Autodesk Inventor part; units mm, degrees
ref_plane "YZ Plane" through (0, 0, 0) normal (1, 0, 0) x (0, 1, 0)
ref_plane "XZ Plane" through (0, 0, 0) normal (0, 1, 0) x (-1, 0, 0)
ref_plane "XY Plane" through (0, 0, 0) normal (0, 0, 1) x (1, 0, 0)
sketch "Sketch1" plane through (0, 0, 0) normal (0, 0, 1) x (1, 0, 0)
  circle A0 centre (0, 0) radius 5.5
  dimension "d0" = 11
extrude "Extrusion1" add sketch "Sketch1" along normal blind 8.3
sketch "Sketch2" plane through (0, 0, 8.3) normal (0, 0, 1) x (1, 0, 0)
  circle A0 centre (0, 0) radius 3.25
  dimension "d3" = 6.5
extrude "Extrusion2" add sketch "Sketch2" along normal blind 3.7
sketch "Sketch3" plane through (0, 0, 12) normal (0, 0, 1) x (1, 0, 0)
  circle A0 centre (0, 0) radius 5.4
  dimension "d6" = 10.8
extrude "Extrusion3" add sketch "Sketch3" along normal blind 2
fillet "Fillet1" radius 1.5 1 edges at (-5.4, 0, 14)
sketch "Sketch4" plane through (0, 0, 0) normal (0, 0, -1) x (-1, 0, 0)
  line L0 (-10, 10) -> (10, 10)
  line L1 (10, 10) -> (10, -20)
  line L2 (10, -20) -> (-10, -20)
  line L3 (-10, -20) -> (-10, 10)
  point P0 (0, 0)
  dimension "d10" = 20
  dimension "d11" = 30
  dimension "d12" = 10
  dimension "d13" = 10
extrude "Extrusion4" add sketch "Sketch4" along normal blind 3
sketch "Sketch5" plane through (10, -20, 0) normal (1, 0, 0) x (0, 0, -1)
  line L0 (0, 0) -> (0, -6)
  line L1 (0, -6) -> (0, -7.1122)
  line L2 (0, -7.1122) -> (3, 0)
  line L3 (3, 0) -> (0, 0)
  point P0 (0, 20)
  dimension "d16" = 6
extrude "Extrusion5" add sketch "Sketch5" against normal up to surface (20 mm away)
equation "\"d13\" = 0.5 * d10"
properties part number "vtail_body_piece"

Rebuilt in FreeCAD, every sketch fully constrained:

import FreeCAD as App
import Part
import Sketcher

V = App.Vector
Q = App.Units.Quantity


def edges_at(feature, points):
    """Names of the edges that pass closest to the given points."""
    edges = feature.Shape.Edges
    near = lambda p: min(range(len(edges)), key=lambda i: edges[i].distToShape(Part.Vertex(*p))[0])
    return sorted({f"Edge{near(p) + 1}" for p in points})

doc = App.newDocument("Part")
body = doc.addObject("PartDesign::Body", "Body")

# Sketch on XY plane
sketch1 = body.newObject("Sketcher::SketchObject", "Sketch")
sketch1.AttachmentSupport = (doc.getObject("XY_Plane"), [""])
sketch1.MapMode = "FlatFace"
sketch1.addGeometry(Part.Circle(V(0, 0, 0), V(0, 0, 1), 5.5), False)
sketch1.addConstraint([
    Sketcher.Constraint("Coincident", 0, 3, -1, 1),
    Sketcher.Constraint("Diameter", 0, Q("11 mm")),
])
pad1 = body.newObject("PartDesign::Pad", "Pad")
pad1.Profile = sketch1
pad1.Length = 8.3

# Sketch on XY plane
sketch2 = body.newObject("Sketcher::SketchObject", "Sketch001")
sketch2.AttachmentSupport = (doc.getObject("XY_Plane"), [""])
sketch2.MapMode = "FlatFace"
sketch2.AttachmentOffset = App.Placement(V(0, 0, 8.3), App.Rotation())
sketch2.addGeometry(Part.Circle(V(0, 0, 0), V(0, 0, 1), 3.25), False)
sketch2.addConstraint([
    Sketcher.Constraint("Coincident", 0, 3, -1, 1),
    Sketcher.Constraint("Diameter", 0, Q("6.5 mm")),
])
pad2 = body.newObject("PartDesign::Pad", "Pad001")
pad2.Profile = sketch2
pad2.Length = 3.7

# Sketch on XY plane
sketch3 = body.newObject("Sketcher::SketchObject", "Sketch002")
sketch3.AttachmentSupport = (doc.getObject("XY_Plane"), [""])
sketch3.MapMode = "FlatFace"
sketch3.AttachmentOffset = App.Placement(V(0, 0, 12), App.Rotation())
sketch3.addGeometry(Part.Circle(V(0, 0, 0), V(0, 0, 1), 5.4), False)
sketch3.addConstraint([
    Sketcher.Constraint("Coincident", 0, 3, -1, 1),
    Sketcher.Constraint("Diameter", 0, Q("10.8 mm")),
])
pad3 = body.newObject("PartDesign::Pad", "Pad002")
pad3.Profile = sketch3
pad3.Length = 2
doc.recompute()

fillet = body.newObject("PartDesign::Fillet", "Fillet")
fillet.Base = (pad3, edges_at(pad3, [(-5.4, 0, 14)]))
fillet.Radius = 1.5

# Sketch on XY plane
sketch4 = body.newObject("Sketcher::SketchObject", "Sketch003")
sketch4.AttachmentSupport = (doc.getObject("XY_Plane"), [""])
sketch4.MapMode = "FlatFace"
sketch4.addGeometry([
    Part.LineSegment(V(-10, 10, 0), V(10, 10, 0)),
    Part.LineSegment(V(10, 10, 0), V(10, -20, 0)),
    Part.LineSegment(V(10, -20, 0), V(-10, -20, 0)),
    Part.LineSegment(V(-10, -20, 0), V(-10, 10, 0)),
], False)
sketch4.addConstraint([
    Sketcher.Constraint("Coincident", 0, 2, 1, 1),
    Sketcher.Constraint("Coincident", 1, 2, 2, 1),
    Sketcher.Constraint("Coincident", 2, 2, 3, 1),
    Sketcher.Constraint("Coincident", 3, 2, 0, 1),
    Sketcher.Constraint("Horizontal", 0),
    Sketcher.Constraint("Vertical", 1),
    Sketcher.Constraint("Horizontal", 2),
    Sketcher.Constraint("Vertical", 3),
    Sketcher.Constraint("DistanceX", 0, 1, 0, 2, Q("20 mm")),
    Sketcher.Constraint("DistanceY", 1, 2, 1, 1, Q("30 mm")),
    Sketcher.Constraint("DistanceX", -1, 1, 0, 2, Q("10 mm")),
    Sketcher.Constraint("DistanceY", -1, 1, 0, 2, Q("10 mm")),
])
pad4 = body.newObject("PartDesign::Pad", "Pad003")
pad4.Profile = sketch4
pad4.Length = 3
pad4.Reversed = True

# Sketch on YZ plane
sketch5 = body.newObject("Sketcher::SketchObject", "Sketch004")
sketch5.AttachmentSupport = (doc.getObject("YZ_Plane"), [""])
sketch5.MapMode = "FlatFace"
sketch5.AttachmentOffset = App.Placement(V(0, 0, 10), App.Rotation())
sketch5.addGeometry([
    Part.LineSegment(V(-20, -3, 0), V(-20, 0, 0)),
    Part.LineSegment(V(-20, 0, 0), V(-27.1122, 0, 0)),
    Part.LineSegment(V(-27.1122, 0, 0), V(-20, -3, 0)),
], False)
sketch5.addConstraint([
    Sketcher.Constraint("Coincident", 0, 2, 1, 1),
    Sketcher.Constraint("Coincident", 1, 2, 2, 1),
    Sketcher.Constraint("Coincident", 2, 2, 0, 1),
    Sketcher.Constraint("Vertical", 0),
    Sketcher.Constraint("Horizontal", 1),
    Sketcher.Constraint("PointOnObject", 0, 2, -1),
    Sketcher.Constraint("DistanceY", 0, 1, 0, 2, Q("3 mm")),
    Sketcher.Constraint("DistanceX", 0, 2, -1, 1, Q("20 mm")),
    Sketcher.Constraint("Angle", 2, Q("-22.8705 deg")),
])
pad5 = body.newObject("PartDesign::Pad", "Pad004")
pad5.Profile = sketch5
pad5.Length = 20
pad5.Reversed = True

doc.recompute()
